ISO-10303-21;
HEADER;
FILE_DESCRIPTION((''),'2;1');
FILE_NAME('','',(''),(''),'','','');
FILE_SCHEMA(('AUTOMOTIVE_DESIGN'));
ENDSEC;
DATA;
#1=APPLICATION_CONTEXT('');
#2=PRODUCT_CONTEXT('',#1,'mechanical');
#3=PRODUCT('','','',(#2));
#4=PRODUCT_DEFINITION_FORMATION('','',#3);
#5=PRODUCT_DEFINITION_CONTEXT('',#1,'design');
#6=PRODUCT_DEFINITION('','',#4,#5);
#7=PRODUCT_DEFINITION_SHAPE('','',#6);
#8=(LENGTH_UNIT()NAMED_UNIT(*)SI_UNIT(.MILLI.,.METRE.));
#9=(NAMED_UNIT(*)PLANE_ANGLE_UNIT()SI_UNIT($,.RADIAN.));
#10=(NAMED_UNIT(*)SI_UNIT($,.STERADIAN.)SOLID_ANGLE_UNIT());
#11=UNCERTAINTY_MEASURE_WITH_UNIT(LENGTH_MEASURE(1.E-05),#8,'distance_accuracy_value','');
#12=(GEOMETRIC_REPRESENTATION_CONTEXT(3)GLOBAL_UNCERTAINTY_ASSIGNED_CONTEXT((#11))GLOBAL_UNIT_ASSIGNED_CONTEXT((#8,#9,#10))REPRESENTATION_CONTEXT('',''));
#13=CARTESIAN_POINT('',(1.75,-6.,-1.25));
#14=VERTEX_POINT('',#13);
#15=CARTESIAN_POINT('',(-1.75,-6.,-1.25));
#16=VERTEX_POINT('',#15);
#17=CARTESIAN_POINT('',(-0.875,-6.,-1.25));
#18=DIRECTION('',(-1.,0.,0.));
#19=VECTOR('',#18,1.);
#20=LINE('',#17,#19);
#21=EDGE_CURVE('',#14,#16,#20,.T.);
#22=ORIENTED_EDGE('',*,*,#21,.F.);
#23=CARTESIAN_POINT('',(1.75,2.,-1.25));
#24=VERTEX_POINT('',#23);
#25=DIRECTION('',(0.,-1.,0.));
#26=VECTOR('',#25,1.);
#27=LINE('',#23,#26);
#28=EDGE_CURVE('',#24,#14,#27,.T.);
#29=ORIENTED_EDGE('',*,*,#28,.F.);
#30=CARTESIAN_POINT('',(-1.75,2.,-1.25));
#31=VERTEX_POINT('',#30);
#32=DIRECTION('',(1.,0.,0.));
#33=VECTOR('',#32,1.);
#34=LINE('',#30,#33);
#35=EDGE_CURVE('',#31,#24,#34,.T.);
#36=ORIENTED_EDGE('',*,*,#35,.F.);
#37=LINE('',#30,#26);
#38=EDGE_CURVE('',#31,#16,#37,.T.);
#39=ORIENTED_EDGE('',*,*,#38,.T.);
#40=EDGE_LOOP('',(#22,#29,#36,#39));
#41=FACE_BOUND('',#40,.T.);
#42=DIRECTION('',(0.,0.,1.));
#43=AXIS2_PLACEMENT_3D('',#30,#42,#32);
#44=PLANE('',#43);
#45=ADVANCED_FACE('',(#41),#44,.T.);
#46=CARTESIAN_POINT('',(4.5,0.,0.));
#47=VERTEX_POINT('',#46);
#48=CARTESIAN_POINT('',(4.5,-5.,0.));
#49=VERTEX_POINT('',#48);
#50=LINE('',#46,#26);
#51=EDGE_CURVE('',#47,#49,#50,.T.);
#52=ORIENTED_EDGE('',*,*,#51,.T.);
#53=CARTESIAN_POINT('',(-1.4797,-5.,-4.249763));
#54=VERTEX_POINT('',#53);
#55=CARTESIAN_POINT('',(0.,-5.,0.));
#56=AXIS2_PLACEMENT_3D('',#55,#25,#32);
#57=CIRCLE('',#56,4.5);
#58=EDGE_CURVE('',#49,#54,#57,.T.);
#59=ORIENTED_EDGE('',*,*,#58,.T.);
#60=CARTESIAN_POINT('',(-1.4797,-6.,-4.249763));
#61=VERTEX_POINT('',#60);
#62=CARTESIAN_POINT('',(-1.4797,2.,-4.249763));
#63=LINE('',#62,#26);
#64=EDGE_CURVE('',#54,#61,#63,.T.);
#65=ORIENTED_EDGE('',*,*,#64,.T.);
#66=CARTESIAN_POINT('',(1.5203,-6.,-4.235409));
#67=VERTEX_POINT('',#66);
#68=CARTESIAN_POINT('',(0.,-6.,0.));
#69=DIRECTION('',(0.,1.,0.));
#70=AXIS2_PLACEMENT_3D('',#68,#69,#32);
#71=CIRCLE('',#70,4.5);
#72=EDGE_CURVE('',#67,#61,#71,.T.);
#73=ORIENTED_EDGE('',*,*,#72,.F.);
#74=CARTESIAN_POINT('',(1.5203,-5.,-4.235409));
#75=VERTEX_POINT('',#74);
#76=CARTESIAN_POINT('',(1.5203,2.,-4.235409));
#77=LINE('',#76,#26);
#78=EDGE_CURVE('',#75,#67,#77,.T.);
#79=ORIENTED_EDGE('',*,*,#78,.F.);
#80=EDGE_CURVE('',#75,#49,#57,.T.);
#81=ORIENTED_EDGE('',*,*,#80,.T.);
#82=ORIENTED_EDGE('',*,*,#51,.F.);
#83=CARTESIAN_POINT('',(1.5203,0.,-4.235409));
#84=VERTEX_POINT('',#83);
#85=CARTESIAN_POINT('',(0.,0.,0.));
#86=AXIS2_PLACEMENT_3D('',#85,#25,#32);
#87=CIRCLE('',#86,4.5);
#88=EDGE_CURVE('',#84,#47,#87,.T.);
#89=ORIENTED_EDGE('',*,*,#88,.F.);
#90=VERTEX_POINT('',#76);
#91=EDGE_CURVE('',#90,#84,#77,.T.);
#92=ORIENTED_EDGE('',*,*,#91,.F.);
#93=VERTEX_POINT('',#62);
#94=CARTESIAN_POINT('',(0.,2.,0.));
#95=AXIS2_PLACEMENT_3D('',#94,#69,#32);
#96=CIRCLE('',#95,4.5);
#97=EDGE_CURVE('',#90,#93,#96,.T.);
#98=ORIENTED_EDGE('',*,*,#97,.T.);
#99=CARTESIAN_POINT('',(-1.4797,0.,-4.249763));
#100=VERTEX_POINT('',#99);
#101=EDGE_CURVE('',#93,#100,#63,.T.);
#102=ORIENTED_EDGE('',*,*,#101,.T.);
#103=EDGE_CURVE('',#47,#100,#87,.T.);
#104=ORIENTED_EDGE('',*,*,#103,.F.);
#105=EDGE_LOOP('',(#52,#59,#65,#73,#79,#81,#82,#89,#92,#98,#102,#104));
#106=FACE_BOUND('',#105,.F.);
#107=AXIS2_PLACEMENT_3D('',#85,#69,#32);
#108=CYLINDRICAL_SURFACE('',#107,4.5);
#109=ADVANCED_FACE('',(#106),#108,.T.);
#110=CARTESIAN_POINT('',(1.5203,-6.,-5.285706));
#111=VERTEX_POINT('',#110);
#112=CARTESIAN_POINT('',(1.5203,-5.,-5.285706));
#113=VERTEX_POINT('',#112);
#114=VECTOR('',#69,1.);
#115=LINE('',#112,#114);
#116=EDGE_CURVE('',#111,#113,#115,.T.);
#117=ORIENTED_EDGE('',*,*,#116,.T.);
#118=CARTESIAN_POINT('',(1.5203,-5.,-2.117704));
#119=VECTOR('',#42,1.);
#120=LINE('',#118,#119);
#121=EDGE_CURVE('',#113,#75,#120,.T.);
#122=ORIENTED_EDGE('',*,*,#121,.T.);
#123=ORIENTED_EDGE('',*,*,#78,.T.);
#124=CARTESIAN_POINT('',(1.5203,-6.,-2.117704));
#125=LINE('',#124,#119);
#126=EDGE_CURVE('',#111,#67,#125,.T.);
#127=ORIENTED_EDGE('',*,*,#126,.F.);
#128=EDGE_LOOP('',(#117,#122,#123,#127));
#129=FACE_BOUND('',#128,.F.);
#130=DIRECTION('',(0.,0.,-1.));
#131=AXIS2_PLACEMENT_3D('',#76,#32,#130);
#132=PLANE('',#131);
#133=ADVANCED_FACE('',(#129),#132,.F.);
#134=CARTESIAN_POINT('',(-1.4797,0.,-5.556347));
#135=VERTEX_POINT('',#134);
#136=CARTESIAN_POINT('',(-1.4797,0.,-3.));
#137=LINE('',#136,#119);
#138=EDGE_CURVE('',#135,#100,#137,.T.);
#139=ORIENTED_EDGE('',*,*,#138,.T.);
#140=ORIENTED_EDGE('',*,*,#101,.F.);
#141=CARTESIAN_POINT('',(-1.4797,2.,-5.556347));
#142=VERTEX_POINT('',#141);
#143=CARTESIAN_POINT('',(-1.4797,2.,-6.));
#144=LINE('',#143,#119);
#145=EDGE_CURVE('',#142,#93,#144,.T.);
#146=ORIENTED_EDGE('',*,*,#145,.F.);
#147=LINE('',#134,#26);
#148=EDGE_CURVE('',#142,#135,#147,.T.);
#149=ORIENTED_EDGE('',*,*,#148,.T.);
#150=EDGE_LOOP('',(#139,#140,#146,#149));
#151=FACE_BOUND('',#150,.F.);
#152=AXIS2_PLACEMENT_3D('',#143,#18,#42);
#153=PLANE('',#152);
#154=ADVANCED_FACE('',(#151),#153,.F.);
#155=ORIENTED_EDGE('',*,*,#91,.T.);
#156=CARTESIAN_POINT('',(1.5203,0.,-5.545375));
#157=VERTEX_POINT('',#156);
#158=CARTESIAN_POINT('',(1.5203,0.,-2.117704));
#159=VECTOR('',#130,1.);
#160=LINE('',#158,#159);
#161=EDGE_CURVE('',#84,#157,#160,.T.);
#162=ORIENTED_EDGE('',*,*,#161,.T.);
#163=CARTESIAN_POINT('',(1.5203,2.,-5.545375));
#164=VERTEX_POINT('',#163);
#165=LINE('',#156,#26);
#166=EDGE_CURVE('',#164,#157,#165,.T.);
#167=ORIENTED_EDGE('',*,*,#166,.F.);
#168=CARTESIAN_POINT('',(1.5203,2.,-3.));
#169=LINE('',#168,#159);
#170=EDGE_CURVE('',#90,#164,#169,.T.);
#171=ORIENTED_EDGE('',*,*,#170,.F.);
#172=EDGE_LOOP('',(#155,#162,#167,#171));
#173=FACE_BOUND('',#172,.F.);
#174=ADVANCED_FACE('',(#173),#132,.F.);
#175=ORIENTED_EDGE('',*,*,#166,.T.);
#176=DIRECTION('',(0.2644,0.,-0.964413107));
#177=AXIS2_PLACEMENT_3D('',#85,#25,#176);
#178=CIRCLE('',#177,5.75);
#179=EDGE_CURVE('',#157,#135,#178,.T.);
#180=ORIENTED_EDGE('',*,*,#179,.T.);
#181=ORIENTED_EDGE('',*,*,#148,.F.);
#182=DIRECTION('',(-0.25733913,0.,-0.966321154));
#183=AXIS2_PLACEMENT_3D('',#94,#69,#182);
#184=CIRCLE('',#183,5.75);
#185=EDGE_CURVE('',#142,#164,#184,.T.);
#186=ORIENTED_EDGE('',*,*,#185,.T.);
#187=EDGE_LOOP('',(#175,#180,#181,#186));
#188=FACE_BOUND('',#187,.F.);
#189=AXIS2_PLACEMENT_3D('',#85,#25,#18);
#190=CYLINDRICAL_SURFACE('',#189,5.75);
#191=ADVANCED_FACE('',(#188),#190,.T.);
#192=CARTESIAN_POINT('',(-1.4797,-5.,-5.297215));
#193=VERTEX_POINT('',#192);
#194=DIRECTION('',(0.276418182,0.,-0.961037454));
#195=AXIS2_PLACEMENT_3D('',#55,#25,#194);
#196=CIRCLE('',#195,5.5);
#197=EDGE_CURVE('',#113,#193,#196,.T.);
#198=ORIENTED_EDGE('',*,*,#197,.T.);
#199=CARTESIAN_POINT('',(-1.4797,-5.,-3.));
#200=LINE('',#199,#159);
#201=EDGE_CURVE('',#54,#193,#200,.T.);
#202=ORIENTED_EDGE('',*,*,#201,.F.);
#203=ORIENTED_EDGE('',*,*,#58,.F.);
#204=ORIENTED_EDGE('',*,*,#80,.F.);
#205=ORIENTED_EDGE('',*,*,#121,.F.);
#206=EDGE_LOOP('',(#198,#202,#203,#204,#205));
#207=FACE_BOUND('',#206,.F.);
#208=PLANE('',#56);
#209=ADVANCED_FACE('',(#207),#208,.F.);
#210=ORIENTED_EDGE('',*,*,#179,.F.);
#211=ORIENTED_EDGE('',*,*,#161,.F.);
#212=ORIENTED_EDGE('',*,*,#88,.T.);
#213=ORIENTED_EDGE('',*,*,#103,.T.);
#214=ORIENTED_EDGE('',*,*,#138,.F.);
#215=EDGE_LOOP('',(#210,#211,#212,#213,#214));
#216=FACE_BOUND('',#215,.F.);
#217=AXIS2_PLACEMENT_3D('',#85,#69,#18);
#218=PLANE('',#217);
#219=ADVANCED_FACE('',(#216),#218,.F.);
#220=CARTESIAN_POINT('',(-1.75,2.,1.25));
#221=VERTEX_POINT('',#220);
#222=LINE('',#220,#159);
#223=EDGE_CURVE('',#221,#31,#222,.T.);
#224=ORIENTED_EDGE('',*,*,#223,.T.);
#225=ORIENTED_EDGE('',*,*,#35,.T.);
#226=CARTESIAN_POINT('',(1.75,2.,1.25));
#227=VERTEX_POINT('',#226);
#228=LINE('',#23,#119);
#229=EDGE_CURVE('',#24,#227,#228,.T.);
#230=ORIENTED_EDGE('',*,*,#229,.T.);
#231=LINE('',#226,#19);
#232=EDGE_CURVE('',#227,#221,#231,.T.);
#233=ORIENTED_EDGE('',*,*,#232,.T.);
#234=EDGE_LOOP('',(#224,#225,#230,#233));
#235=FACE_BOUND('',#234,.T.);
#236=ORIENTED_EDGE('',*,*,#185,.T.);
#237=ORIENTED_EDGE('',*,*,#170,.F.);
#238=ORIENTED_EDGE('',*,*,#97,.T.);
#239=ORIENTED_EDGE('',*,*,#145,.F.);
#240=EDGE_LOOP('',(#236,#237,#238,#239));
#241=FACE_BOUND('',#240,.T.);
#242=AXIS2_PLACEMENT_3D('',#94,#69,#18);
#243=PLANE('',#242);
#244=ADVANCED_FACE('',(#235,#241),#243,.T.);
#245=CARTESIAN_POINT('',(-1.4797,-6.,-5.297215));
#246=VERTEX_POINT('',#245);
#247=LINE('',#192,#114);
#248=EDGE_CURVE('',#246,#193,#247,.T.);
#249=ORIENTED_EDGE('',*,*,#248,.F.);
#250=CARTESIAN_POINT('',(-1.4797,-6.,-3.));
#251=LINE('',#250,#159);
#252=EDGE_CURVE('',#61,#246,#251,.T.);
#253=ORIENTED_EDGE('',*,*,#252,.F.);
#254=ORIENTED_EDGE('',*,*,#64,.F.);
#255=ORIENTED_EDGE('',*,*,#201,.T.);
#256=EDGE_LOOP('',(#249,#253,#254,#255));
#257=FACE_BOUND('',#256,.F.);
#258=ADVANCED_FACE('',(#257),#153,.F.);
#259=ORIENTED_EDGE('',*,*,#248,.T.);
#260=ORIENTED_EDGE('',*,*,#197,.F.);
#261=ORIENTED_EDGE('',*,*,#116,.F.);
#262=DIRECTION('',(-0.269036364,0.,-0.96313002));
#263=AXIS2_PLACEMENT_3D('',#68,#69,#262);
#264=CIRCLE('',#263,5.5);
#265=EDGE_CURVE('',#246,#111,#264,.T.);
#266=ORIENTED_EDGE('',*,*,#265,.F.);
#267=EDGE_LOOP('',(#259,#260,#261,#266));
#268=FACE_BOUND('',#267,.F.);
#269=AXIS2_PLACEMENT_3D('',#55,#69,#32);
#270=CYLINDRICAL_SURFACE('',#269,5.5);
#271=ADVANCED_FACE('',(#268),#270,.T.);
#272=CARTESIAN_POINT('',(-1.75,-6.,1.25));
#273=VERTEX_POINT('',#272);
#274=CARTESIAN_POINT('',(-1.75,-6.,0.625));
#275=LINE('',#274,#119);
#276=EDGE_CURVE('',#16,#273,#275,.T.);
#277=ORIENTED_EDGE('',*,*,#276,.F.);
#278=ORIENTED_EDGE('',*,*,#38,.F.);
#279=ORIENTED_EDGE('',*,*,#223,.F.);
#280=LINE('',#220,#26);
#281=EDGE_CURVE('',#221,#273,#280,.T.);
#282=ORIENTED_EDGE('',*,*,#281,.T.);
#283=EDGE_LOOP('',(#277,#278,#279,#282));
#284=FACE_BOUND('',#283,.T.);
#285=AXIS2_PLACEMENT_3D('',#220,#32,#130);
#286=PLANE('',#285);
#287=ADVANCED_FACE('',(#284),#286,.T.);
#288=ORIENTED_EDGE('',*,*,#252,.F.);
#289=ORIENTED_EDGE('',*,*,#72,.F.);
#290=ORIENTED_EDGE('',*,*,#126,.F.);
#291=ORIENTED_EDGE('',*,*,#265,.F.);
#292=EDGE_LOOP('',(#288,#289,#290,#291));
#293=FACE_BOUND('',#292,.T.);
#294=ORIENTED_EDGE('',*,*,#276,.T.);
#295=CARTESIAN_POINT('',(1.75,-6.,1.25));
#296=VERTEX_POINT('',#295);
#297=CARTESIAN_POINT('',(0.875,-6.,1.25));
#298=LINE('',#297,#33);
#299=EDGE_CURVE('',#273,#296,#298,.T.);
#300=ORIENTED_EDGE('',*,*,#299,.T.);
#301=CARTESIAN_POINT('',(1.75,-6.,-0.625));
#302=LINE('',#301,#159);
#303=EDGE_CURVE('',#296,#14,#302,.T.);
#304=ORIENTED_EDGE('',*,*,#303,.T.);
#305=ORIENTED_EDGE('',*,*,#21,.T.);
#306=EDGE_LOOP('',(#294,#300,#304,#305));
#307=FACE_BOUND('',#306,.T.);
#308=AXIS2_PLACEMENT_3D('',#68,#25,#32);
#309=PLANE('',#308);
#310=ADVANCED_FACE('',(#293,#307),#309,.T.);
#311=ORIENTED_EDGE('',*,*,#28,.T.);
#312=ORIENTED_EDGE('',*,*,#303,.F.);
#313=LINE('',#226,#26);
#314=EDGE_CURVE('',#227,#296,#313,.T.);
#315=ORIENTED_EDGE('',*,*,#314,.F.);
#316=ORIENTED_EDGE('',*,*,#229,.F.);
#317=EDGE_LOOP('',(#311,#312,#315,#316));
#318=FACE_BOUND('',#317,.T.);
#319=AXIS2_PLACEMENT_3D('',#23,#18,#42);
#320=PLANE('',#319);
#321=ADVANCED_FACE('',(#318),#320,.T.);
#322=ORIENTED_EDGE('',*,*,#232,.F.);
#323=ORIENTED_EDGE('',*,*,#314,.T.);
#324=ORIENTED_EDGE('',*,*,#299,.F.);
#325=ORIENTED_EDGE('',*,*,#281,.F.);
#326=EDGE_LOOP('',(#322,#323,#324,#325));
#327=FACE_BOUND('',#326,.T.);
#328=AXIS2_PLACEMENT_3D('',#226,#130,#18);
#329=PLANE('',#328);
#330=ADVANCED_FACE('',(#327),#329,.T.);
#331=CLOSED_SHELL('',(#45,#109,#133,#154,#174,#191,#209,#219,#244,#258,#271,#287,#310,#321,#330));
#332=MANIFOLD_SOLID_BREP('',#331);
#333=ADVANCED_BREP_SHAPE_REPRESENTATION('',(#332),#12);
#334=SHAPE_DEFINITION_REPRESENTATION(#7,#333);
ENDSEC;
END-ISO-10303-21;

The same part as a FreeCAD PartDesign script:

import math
import FreeCAD as App
import Part
import Sketcher
Q = App.Units.Quantity

doc = App.newDocument("Part")
params = doc.addObject("Spreadsheet::Sheet", "Params")
for row, (alias, value) in enumerate([
    ("sketch1_diameter", "11.5 mm"),
    ("pad1_length", "2 mm"),
    ("sketch2_diameter", "9 mm"),
    ("pad2_length", "5 mm"),
    ("sketch3_diameter", "11 mm"),
    ("pad3_length", "1 mm"),
    ("sketch4_width", "3.5 mm"),
    ("sketch4_height", "2.5 mm"),
    ("sketch5_width", "3 mm"),
    ("sketch5_radius", "4.5 mm"),
], start=1):
    params.set(f"A{row}", alias)
    params.set(f"B{row}", "=" + value)
    params.setAlias(f"B{row}", alias)

body = doc.addObject("PartDesign::Body", "Body")

# Sketch on XZ plane
sketch1 = doc.addObject("Sketcher::SketchObject", "Sketch")
body.addObject(sketch1)
sketch1.AttachmentSupport = (doc.XZ_Plane, [""])
sketch1.MapMode = "FlatFace"
sketch1.addGeometry(Part.Circle(App.Vector(0, 0, 0), App.Vector(0, 0, 1), 6), False)
sketch1.addConstraint([
    Sketcher.Constraint("Coincident", 0, 3, -1, 1),
    Sketcher.Constraint("Diameter", 0, Q("11.5 mm")),
])
sketch1.setExpression("Constraints[1]", "Params.sketch1_diameter")
pad1 = doc.addObject("PartDesign::Pad", "Pad")
body.addObject(pad1)
pad1.Profile = sketch1
pad1.setExpression("Length", "Params.pad1_length")
pad1.Reversed = True

# Sketch on XZ plane
sketch2 = doc.addObject("Sketcher::SketchObject", "Sketch001")
body.addObject(sketch2)
sketch2.AttachmentSupport = (doc.XZ_Plane, [""])
sketch2.MapMode = "FlatFace"
sketch2.addGeometry(Part.Circle(App.Vector(0, 0, 0), App.Vector(0, 0, 1), 4.5), False)
sketch2.addConstraint([
    Sketcher.Constraint("Coincident", 0, 3, -1, 1),
    Sketcher.Constraint("Diameter", 0, Q("9 mm")),
])
sketch2.setExpression("Constraints[1]", "Params.sketch2_diameter")
pad2 = doc.addObject("PartDesign::Pad", "Pad001")
body.addObject(pad2)
pad2.Profile = sketch2
pad2.setExpression("Length", "Params.pad2_length")

# Sketch on XZ plane
sketch3 = doc.addObject("Sketcher::SketchObject", "Sketch002")
body.addObject(sketch3)
sketch3.AttachmentSupport = (doc.XZ_Plane, [""])
sketch3.MapMode = "FlatFace"
sketch3.AttachmentOffset = App.Placement(App.Vector(0, 0, 5), App.Rotation())
sketch3.addGeometry(Part.Circle(App.Vector(0, 0, 0), App.Vector(0, 0, 1), 6), False)
sketch3.addConstraint([
    Sketcher.Constraint("Coincident", 0, 3, -1, 1),
    Sketcher.Constraint("Diameter", 0, Q("11 mm")),
])
sketch3.setExpression("Constraints[1]", "Params.sketch3_diameter")
pad3 = doc.addObject("PartDesign::Pad", "Pad002")
body.addObject(pad3)
pad3.Profile = sketch3
pad3.setExpression("Length", "Params.pad3_length")

# Sketch on XZ plane
sketch4 = doc.addObject("Sketcher::SketchObject", "Sketch003")
body.addObject(sketch4)
sketch4.AttachmentSupport = (doc.XZ_Plane, [""])
sketch4.MapMode = "FlatFace"
sketch4.AttachmentOffset = App.Placement(App.Vector(0, 0, -2), App.Rotation())
sketch4.addGeometry([
    Part.LineSegment(App.Vector(1.8, -1.2, 0), App.Vector(-1.8, -1.2, 0)),
    Part.LineSegment(App.Vector(-1.8, -1.2, 0), App.Vector(-1.8, 1.2, 0)),
    Part.LineSegment(App.Vector(-1.8, 1.2, 0), App.Vector(1.8, 1.2, 0)),
    Part.LineSegment(App.Vector(1.8, 1.2, 0), App.Vector(1.8, -1.2, 0)),
], False)
sketch4.addConstraint([
    Sketcher.Constraint("Coincident", 0, 2, 1, 1),
    Sketcher.Constraint("Coincident", 1, 2, 2, 1),
    Sketcher.Constraint("Coincident", 2, 2, 3, 1),
    Sketcher.Constraint("Coincident", 3, 2, 0, 1),
    Sketcher.Constraint("Horizontal", 0),
    Sketcher.Constraint("Vertical", 1),
    Sketcher.Constraint("Horizontal", 2),
    Sketcher.Constraint("Vertical", 3),
    Sketcher.Constraint("Symmetric", 0, 2, 2, 2, -1, 1),
    Sketcher.Constraint("DistanceX", 0, 2, 0, 1, Q("3.5 mm")),
    Sketcher.Constraint("DistanceY", 1, 1, 1, 2, Q("2.5 mm")),
])
sketch4.setExpression("Constraints[9]", "Params.sketch4_width")
sketch4.setExpression("Constraints[10]", "Params.sketch4_height")
pocket1 = doc.addObject("PartDesign::Pocket", "Pocket")
body.addObject(pocket1)
pocket1.Profile = sketch4
pocket1.Type = "ThroughAll"
pocket1.Reversed = True

# Sketch on XZ plane
sketch5 = doc.addObject("Sketcher::SketchObject", "Sketch004")
body.addObject(sketch5)
sketch5.AttachmentSupport = (doc.XZ_Plane, [""])
sketch5.MapMode = "FlatFace"
sketch5.AttachmentOffset = App.Placement(App.Vector(0, 0, -2), App.Rotation())
sketch5.addGeometry([
    Part.LineSegment(App.Vector(-1.5, -6, 0), App.Vector(-1.5, -4.2, 0)),
    Part.ArcOfCircle(Part.Circle(App.Vector(0, 0, 0), App.Vector(0, 0, 1), 4.5), math.radians(-109), math.radians(-70)),
    Part.LineSegment(App.Vector(1.5, -4.2, 0), App.Vector(1.5, -6, 0)),
    Part.LineSegment(App.Vector(1.5, -6, 0), App.Vector(-1.5, -6, 0)),
], False)
sketch5.addConstraint([
    Sketcher.Constraint("Coincident", 0, 2, 1, 1),
    Sketcher.Constraint("Coincident", 1, 2, 2, 1),
    Sketcher.Constraint("Coincident", 2, 2, 3, 1),
    Sketcher.Constraint("Coincident", 3, 2, 0, 1),
    Sketcher.Constraint("Vertical", 0),
    Sketcher.Constraint("Vertical", 2),
    Sketcher.Constraint("Horizontal", 3),
    Sketcher.Constraint("Coincident", 1, 3, -1, 1),
    Sketcher.Constraint("DistanceX", 3, 2, 3, 1, Q("3 mm")),
    Sketcher.Constraint("Radius", 1, Q("4.5 mm")),
    Sketcher.Constraint("DistanceY", 2, 2, -1, 1, Q("6 mm")),
    Sketcher.Constraint("DistanceY", 0, 1, 0, 2, Q("1.7502 mm")),
])
sketch5.setExpression("Constraints[8]", "Params.sketch5_width")
sketch5.setExpression("Constraints[9]", "Params.sketch5_radius")
pocket2 = doc.addObject("PartDesign::Pocket", "Pocket001")
body.addObject(pocket2)
pocket2.Profile = sketch5
pocket2.Type = "ThroughAll"
pocket2.Reversed = True

doc.recompute()
